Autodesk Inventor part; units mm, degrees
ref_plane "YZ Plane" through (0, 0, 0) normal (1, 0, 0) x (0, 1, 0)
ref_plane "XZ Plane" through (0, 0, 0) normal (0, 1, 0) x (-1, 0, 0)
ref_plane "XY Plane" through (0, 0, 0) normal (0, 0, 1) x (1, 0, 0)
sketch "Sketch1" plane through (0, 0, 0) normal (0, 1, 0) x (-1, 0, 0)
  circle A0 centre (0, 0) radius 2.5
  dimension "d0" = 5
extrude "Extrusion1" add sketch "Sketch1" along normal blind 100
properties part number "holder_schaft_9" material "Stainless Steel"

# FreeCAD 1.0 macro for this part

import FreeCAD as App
import Part
import Sketcher
from FreeCAD import Vector

doc = App.newDocument("Part")
params = doc.addObject("Spreadsheet::Sheet", "Params")
for row, (alias, value) in enumerate([
    ("sketch1_diameter", "5 mm"),
    ("pad1_length", "100 mm"),
], start=1):
    params.set(f"A{row}", alias)
    params.set(f"B{row}", "=" + value)
    params.setAlias(f"B{row}", alias)

body = doc.addObject("PartDesign::Body", "Body")

sketch1 = doc.addObject("Sketcher::SketchObject", "Sketch")
body.addObject(sketch1)
sketch1.AttachmentSupport = (doc.XZ_Plane, [""])
sketch1.MapMode = "FlatFace"
sketch1.addGeometry(Part.Circle(Vector(0, 0, 0), Vector(0, 0, 1), 2.5), False)
sketch1.addConstraint([
    Sketcher.Constraint("Coincident", 0, 3, -1, 1),
    Sketcher.Constraint("Diameter", 0, 5.0),
])
sketch1.setExpression("Constraints[1]", "Params.sketch1_diameter")
pad1 = doc.addObject("PartDesign::Pad", "Pad")
body.addObject(pad1)
pad1.Profile = sketch1
pad1.setExpression("Length", "Params.pad1_length")
pad1.Reversed = True

doc.recompute()
